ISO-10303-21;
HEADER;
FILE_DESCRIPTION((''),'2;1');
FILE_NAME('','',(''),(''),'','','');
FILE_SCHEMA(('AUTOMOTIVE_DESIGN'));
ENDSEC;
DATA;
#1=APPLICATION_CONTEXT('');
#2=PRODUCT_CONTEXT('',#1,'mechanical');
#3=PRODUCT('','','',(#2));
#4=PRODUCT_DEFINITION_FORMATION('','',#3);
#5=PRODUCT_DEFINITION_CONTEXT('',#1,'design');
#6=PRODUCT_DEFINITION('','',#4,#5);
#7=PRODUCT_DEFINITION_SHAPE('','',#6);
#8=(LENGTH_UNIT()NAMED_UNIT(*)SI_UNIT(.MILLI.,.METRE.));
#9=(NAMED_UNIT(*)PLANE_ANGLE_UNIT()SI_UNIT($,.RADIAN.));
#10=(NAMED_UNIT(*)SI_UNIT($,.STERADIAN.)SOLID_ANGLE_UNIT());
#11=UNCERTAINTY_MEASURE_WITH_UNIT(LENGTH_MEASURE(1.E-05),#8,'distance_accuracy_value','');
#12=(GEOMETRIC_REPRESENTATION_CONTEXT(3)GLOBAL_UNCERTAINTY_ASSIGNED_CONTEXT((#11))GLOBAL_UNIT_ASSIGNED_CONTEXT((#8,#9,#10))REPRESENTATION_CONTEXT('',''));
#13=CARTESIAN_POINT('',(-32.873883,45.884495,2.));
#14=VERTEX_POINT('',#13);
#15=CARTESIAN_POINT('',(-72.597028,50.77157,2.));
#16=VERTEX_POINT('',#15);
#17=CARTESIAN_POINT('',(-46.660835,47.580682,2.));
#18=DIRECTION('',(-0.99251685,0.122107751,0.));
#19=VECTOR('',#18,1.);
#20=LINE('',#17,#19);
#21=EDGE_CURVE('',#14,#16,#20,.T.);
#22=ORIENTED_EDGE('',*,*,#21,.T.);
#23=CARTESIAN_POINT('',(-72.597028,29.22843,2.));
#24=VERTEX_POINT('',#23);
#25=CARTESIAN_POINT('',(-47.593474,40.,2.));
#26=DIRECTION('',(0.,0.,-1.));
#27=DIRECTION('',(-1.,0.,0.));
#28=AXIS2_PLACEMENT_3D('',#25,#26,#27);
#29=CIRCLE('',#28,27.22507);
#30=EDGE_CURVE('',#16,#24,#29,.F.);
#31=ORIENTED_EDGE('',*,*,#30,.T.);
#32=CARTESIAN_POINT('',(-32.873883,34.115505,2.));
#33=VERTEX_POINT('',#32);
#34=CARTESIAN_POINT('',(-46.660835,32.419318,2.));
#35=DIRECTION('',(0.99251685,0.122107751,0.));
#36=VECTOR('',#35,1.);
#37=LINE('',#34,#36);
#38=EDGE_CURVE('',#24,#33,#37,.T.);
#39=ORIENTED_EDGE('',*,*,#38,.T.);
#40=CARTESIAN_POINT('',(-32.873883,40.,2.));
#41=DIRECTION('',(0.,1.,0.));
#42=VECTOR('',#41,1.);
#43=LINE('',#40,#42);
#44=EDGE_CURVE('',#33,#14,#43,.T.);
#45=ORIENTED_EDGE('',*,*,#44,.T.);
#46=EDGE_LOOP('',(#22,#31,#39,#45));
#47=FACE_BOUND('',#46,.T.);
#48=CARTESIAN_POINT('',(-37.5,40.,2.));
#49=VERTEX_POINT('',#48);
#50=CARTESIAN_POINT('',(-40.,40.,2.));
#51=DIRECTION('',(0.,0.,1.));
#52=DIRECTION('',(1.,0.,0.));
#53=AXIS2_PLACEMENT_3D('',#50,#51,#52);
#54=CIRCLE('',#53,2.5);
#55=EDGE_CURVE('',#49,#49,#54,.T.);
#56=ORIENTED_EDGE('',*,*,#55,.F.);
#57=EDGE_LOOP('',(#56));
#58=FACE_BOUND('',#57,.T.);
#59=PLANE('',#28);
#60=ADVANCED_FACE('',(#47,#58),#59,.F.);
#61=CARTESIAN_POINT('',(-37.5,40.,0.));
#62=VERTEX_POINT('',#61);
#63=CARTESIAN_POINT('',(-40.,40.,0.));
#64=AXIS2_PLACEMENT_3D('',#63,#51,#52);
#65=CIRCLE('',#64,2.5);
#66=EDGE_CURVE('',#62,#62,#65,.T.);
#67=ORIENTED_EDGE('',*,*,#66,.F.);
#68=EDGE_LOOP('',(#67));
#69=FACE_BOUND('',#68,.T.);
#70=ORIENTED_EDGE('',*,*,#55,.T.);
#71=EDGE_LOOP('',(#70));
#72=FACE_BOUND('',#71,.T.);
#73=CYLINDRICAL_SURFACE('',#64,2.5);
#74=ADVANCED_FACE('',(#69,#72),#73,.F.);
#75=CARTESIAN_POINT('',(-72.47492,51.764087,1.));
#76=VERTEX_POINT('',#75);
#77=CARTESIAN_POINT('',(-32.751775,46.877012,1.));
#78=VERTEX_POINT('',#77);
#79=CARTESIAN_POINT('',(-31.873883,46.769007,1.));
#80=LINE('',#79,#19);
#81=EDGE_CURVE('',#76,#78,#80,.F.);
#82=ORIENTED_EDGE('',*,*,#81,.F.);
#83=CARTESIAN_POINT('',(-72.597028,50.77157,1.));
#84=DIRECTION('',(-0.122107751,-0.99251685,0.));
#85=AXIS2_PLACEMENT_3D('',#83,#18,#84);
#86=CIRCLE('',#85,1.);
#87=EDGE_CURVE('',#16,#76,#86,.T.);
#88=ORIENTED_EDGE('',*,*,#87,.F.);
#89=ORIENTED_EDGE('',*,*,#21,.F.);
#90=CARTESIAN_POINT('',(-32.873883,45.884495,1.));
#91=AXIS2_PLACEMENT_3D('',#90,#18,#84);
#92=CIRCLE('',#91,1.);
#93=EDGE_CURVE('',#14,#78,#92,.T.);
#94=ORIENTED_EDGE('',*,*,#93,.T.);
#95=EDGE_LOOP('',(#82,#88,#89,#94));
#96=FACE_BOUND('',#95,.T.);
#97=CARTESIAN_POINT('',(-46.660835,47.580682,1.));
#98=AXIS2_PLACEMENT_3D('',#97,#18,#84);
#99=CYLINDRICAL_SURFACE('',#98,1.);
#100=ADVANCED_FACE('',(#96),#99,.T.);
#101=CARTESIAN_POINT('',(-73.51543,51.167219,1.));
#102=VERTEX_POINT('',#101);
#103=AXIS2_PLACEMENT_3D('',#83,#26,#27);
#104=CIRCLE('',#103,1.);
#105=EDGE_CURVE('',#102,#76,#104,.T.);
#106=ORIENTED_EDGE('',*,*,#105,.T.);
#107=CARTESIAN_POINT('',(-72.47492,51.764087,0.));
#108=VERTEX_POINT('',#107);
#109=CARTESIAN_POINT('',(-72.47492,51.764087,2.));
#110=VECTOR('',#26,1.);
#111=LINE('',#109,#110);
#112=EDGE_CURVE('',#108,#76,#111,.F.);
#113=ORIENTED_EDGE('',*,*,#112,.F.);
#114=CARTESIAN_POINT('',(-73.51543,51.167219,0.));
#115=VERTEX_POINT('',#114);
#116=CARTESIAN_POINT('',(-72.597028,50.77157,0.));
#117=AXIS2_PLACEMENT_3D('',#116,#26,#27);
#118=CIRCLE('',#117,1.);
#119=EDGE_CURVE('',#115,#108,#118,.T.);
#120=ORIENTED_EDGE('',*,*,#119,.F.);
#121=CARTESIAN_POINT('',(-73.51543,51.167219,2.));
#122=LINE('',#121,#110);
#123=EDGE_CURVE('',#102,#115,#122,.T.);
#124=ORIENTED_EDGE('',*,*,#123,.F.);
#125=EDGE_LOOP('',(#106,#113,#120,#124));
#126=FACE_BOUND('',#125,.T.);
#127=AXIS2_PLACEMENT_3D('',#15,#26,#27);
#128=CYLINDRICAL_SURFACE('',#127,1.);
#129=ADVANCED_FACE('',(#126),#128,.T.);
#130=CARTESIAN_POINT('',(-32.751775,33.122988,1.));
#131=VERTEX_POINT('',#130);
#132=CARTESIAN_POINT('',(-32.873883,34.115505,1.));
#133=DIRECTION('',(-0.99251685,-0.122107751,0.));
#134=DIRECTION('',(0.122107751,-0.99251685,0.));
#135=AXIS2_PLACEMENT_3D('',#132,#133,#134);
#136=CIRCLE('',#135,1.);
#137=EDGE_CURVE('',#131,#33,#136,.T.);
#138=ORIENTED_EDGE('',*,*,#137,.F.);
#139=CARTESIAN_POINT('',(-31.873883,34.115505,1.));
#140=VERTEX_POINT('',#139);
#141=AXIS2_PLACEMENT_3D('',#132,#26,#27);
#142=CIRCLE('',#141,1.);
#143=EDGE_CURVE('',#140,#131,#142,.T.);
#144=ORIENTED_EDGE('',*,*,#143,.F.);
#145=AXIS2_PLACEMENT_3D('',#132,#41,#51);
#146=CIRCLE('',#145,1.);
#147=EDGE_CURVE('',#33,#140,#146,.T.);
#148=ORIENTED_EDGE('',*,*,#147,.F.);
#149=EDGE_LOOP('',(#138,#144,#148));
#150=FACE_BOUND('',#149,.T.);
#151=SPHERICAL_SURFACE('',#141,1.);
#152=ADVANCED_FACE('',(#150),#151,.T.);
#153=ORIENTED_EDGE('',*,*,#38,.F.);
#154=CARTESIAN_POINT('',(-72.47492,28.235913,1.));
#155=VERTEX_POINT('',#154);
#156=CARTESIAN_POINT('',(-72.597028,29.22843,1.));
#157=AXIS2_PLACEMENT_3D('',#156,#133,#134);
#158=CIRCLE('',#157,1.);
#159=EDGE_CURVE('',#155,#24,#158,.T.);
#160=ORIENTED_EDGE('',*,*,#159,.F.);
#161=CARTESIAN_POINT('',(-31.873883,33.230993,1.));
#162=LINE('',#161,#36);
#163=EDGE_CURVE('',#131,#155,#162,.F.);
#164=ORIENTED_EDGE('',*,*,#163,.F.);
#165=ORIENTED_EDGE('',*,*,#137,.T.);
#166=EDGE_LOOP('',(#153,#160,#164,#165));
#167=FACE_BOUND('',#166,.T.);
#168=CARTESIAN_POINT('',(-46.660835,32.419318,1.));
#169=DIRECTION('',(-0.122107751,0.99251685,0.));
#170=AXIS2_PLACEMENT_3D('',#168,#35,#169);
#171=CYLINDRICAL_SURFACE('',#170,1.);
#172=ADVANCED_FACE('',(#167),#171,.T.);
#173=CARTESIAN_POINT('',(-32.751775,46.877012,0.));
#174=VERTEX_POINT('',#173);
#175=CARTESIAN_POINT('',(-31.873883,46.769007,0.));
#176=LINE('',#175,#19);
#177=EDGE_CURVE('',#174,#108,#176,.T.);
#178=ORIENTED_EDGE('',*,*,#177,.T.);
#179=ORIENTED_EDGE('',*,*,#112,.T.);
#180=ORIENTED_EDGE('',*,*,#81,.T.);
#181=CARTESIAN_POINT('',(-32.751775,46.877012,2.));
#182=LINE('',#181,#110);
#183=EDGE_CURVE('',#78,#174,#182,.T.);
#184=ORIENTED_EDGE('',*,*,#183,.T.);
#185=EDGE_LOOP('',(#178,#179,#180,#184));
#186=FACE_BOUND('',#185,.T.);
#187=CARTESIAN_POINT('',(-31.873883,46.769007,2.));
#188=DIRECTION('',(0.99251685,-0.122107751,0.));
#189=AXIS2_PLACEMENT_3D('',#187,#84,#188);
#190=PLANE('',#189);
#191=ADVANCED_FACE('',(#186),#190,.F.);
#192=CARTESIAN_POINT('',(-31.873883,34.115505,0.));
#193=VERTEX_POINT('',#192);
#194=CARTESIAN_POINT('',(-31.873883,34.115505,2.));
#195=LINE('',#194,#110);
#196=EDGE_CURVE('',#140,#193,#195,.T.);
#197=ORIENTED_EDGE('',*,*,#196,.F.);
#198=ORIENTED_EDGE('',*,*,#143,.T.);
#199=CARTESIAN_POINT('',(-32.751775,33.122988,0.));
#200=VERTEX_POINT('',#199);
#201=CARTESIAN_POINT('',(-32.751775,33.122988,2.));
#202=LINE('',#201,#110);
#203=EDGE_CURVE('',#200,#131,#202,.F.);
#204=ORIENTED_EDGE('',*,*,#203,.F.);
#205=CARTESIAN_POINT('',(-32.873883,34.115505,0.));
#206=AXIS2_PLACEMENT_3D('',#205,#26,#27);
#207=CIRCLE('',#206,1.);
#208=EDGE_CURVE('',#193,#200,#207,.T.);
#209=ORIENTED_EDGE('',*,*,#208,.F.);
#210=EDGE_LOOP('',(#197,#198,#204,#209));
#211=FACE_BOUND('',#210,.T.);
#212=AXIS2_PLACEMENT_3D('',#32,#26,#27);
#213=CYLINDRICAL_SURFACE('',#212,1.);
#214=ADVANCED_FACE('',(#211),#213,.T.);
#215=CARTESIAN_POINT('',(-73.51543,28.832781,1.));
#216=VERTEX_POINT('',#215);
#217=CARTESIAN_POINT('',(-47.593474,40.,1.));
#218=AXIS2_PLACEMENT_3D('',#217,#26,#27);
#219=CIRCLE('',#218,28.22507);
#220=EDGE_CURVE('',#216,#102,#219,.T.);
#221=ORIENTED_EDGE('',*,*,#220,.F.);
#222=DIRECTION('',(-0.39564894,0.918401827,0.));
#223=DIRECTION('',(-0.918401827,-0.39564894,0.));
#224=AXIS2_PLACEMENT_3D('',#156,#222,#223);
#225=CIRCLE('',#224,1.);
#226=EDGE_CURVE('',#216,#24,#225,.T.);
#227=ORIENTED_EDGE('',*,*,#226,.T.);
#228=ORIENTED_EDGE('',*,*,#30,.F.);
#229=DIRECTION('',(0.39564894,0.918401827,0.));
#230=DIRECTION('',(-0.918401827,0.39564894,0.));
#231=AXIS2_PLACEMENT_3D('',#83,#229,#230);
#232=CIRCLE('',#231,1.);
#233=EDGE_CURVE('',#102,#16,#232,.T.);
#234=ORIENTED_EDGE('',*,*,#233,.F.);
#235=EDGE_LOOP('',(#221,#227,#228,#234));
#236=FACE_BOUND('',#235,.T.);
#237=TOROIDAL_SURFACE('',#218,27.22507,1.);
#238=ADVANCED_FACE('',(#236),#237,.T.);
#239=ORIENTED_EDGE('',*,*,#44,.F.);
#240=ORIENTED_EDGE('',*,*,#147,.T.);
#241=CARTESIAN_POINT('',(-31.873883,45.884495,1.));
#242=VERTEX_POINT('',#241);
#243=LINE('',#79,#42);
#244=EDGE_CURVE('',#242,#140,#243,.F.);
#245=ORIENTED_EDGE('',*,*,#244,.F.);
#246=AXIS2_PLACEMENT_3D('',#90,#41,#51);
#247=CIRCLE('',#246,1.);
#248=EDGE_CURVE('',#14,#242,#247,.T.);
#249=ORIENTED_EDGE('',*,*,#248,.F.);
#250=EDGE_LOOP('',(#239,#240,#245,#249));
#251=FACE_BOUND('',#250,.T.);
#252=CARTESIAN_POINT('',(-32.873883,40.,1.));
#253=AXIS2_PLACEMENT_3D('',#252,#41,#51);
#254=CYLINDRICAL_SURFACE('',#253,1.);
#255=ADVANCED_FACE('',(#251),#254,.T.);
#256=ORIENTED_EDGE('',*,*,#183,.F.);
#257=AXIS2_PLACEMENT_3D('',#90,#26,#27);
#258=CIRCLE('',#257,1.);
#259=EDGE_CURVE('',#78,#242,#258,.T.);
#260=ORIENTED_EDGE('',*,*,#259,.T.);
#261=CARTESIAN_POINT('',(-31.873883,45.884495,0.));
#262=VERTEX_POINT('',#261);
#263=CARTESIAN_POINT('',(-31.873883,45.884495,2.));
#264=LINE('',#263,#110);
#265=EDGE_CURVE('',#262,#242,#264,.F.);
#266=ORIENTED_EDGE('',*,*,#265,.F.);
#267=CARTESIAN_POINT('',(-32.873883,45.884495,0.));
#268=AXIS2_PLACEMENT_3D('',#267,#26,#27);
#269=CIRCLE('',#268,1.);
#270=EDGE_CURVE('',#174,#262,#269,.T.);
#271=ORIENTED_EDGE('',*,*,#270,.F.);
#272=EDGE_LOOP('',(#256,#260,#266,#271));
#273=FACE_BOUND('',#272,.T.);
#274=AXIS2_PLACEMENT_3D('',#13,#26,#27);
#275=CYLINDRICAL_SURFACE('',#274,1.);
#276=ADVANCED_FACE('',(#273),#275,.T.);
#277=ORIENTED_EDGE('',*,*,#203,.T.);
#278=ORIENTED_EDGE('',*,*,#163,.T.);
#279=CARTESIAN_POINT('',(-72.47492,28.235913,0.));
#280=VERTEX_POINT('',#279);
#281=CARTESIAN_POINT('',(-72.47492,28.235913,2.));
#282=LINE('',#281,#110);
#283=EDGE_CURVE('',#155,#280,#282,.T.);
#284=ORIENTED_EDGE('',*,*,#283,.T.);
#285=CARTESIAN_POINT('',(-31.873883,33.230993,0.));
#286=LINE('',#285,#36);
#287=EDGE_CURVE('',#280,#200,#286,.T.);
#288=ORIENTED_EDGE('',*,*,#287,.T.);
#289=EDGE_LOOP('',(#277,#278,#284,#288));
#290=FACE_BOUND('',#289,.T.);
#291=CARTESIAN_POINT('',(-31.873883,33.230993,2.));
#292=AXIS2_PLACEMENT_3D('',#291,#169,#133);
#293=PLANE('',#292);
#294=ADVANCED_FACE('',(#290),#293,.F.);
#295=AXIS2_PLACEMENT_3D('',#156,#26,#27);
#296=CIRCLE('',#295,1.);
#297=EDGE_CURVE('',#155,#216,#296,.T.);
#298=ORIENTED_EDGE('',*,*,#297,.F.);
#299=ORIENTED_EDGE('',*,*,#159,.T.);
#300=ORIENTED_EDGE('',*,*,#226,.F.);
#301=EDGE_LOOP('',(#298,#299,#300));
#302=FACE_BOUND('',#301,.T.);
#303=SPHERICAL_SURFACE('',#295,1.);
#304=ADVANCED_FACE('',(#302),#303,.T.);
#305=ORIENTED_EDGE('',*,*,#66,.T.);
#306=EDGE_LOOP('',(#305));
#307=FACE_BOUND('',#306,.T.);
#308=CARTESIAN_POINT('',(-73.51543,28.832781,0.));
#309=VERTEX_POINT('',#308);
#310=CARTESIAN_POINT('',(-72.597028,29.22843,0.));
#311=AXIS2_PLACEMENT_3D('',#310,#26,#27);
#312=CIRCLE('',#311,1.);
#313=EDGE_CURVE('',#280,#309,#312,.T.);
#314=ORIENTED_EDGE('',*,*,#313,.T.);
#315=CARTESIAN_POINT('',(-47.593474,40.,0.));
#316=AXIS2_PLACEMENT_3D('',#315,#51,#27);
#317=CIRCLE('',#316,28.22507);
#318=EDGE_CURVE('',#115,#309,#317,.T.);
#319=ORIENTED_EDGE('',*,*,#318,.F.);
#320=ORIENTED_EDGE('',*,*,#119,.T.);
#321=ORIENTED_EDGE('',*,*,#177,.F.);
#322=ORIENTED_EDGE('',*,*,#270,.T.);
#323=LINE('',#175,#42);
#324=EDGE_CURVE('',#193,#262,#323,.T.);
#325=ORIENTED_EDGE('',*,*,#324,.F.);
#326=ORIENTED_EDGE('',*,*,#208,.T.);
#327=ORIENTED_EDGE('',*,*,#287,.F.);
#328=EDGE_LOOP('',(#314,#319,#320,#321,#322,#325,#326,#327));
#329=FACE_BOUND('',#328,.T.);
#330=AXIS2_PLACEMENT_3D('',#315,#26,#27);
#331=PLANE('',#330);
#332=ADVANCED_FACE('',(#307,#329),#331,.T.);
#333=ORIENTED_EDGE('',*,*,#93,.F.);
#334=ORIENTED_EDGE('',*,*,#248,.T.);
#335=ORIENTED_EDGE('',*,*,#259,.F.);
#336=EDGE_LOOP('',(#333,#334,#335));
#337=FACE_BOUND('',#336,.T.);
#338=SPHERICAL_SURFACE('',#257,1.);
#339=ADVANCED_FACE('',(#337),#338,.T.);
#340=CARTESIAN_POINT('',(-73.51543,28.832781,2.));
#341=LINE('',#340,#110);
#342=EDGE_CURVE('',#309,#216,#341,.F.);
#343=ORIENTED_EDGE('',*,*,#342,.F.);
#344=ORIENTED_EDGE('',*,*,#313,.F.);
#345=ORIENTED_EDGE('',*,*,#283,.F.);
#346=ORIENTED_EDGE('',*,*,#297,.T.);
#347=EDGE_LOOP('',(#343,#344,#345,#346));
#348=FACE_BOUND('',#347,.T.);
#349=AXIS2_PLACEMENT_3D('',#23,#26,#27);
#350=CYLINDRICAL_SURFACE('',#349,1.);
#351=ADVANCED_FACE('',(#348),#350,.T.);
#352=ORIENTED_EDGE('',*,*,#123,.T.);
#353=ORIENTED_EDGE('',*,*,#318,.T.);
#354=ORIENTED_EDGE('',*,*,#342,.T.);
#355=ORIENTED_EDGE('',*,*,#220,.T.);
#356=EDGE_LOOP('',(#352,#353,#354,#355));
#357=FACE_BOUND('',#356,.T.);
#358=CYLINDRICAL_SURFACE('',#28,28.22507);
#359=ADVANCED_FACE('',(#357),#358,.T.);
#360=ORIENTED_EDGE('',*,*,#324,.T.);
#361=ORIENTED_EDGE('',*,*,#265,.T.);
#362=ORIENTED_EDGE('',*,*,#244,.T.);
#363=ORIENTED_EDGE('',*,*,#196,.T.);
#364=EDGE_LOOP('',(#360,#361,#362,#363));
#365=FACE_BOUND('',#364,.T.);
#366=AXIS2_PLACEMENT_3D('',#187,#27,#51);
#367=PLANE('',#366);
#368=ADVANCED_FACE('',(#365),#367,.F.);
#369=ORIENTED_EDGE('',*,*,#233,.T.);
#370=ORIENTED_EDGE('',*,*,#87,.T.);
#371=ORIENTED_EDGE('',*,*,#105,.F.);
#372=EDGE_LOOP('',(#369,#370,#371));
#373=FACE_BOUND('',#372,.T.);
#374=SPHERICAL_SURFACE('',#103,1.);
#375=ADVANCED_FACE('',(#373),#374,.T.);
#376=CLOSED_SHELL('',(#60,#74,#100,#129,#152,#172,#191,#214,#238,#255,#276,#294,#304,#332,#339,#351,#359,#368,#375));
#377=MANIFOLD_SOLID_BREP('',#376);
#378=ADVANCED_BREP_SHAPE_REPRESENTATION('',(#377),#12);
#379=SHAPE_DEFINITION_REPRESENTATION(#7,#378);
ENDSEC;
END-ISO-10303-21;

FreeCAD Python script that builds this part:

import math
import FreeCAD as App
import Part
import Sketcher

V = App.Vector
Q = App.Units.Quantity


def edges_at(feature, points):
    """Names of the edges that pass closest to the given points."""
    edges = feature.Shape.Edges
    near = lambda p: min(range(len(edges)), key=lambda i: edges[i].distToShape(Part.Vertex(*p))[0])
    return sorted({f"Edge{near(p) + 1}" for p in points})

doc = App.newDocument("Part")
body = doc.addObject("PartDesign::Body", "Body")

# Sketch on XY plane
sketch1 = body.newObject("Sketcher::SketchObject", "Sketch")
sketch1.AttachmentSupport = (doc.getObject("XY_Plane"), [""])
sketch1.MapMode = "FlatFace"
sketch1.addGeometry([
    Part.LineSegment(V(-31.873883, 33.230993, 0), V(-31.873883, 46.769007, 0)),
    Part.LineSegment(V(-31.873883, 46.769007, 0), V(-73.208494, 51.854337, 0)),
    Part.ArcOfCircle(Part.Circle(V(-47.593474, 40, 0), V(0, 0, 1), 28.22507), math.radians(155.165842), math.radians(204.834158)),
    Part.LineSegment(V(-73.208494, 28.145663, 0), V(-31.873883, 33.230993, 0)),
], False)
sketch1.addConstraint([
    Sketcher.Constraint("Coincident", 0, 2, 1, 1),
    Sketcher.Constraint("Coincident", 1, 2, 2, 1),
    Sketcher.Constraint("Coincident", 2, 2, 3, 1),
    Sketcher.Constraint("Coincident", 3, 2, 0, 1),
    Sketcher.Constraint("Vertical", 0),
    Sketcher.Constraint("Vertical", 1, 2, 2, 2),
    Sketcher.Constraint("Equal", 1, 3),
    Sketcher.Constraint("DistanceY", -1, 1, 2, 3, Q("40 mm")),
    Sketcher.Constraint("Radius", 2, Q("28.22507 mm")),
    Sketcher.Constraint("DistanceY", 0, 1, 0, 2, Q("13.538013 mm")),
    Sketcher.Constraint("DistanceX", 2, 3, 0, 2, Q("15.719591 mm")),
    Sketcher.Constraint("DistanceX", 1, 2, 2, 3, Q("25.61502 mm")),
    Sketcher.Constraint("DistanceX", 2, 3, -1, 1, Q("47.593474 mm")),
])
pad1 = body.newObject("PartDesign::Pad", "Pad")
pad1.Profile = sketch1
pad1.Length = 2
doc.recompute()

fillet = body.newObject("PartDesign::Fillet", "Fillet")
fillet.Base = (pad1, edges_at(pad1, [
    (-73.208, 51.854, 1),
    (-31.874, 46.769, 1),
    (-31.874, 33.231, 1),
    (-73.208, 28.146, 1),
]))
fillet.Radius = 1
doc.recompute()

fillet2 = body.newObject("PartDesign::Fillet", "Fillet001")
fillet2.Base = (fillet, edges_at(fillet, [
    (-52.613, 30.679, 2),
    (-75.819, 40, 2),
    (-31.874, 40, 2),
    (-52.613, 49.321, 2),
    (-32.125, 33.453, 2),
    (-32.125, 46.547, 2),
    (-73.095, 51.639, 2),
    (-73.095, 28.361, 2),
]))
fillet2.Radius = 1

# Sketch on XY plane
sketch2 = body.newObject("Sketcher::SketchObject", "Sketch001")
sketch2.AttachmentSupport = (doc.getObject("XY_Plane"), [""])
sketch2.MapMode = "FlatFace"
sketch2.AttachmentOffset = App.Placement(V(0, 0, 2), App.Rotation())
sketch2.addGeometry(Part.Circle(V(-40, 40, 0), V(0, 0, 1), 2.5), False)
sketch2.addConstraint([
    Sketcher.Constraint("Diameter", 0, Q("5 mm")),
    Sketcher.Constraint("DistanceX", 0, 3, -1, 1, Q("40 mm")),
    Sketcher.Constraint("DistanceY", -1, 1, 0, 3, Q("40 mm")),
])
pocket1 = body.newObject("PartDesign::Pocket", "Pocket")
pocket1.Profile = sketch2
pocket1.Length = 2

doc.recompute()
